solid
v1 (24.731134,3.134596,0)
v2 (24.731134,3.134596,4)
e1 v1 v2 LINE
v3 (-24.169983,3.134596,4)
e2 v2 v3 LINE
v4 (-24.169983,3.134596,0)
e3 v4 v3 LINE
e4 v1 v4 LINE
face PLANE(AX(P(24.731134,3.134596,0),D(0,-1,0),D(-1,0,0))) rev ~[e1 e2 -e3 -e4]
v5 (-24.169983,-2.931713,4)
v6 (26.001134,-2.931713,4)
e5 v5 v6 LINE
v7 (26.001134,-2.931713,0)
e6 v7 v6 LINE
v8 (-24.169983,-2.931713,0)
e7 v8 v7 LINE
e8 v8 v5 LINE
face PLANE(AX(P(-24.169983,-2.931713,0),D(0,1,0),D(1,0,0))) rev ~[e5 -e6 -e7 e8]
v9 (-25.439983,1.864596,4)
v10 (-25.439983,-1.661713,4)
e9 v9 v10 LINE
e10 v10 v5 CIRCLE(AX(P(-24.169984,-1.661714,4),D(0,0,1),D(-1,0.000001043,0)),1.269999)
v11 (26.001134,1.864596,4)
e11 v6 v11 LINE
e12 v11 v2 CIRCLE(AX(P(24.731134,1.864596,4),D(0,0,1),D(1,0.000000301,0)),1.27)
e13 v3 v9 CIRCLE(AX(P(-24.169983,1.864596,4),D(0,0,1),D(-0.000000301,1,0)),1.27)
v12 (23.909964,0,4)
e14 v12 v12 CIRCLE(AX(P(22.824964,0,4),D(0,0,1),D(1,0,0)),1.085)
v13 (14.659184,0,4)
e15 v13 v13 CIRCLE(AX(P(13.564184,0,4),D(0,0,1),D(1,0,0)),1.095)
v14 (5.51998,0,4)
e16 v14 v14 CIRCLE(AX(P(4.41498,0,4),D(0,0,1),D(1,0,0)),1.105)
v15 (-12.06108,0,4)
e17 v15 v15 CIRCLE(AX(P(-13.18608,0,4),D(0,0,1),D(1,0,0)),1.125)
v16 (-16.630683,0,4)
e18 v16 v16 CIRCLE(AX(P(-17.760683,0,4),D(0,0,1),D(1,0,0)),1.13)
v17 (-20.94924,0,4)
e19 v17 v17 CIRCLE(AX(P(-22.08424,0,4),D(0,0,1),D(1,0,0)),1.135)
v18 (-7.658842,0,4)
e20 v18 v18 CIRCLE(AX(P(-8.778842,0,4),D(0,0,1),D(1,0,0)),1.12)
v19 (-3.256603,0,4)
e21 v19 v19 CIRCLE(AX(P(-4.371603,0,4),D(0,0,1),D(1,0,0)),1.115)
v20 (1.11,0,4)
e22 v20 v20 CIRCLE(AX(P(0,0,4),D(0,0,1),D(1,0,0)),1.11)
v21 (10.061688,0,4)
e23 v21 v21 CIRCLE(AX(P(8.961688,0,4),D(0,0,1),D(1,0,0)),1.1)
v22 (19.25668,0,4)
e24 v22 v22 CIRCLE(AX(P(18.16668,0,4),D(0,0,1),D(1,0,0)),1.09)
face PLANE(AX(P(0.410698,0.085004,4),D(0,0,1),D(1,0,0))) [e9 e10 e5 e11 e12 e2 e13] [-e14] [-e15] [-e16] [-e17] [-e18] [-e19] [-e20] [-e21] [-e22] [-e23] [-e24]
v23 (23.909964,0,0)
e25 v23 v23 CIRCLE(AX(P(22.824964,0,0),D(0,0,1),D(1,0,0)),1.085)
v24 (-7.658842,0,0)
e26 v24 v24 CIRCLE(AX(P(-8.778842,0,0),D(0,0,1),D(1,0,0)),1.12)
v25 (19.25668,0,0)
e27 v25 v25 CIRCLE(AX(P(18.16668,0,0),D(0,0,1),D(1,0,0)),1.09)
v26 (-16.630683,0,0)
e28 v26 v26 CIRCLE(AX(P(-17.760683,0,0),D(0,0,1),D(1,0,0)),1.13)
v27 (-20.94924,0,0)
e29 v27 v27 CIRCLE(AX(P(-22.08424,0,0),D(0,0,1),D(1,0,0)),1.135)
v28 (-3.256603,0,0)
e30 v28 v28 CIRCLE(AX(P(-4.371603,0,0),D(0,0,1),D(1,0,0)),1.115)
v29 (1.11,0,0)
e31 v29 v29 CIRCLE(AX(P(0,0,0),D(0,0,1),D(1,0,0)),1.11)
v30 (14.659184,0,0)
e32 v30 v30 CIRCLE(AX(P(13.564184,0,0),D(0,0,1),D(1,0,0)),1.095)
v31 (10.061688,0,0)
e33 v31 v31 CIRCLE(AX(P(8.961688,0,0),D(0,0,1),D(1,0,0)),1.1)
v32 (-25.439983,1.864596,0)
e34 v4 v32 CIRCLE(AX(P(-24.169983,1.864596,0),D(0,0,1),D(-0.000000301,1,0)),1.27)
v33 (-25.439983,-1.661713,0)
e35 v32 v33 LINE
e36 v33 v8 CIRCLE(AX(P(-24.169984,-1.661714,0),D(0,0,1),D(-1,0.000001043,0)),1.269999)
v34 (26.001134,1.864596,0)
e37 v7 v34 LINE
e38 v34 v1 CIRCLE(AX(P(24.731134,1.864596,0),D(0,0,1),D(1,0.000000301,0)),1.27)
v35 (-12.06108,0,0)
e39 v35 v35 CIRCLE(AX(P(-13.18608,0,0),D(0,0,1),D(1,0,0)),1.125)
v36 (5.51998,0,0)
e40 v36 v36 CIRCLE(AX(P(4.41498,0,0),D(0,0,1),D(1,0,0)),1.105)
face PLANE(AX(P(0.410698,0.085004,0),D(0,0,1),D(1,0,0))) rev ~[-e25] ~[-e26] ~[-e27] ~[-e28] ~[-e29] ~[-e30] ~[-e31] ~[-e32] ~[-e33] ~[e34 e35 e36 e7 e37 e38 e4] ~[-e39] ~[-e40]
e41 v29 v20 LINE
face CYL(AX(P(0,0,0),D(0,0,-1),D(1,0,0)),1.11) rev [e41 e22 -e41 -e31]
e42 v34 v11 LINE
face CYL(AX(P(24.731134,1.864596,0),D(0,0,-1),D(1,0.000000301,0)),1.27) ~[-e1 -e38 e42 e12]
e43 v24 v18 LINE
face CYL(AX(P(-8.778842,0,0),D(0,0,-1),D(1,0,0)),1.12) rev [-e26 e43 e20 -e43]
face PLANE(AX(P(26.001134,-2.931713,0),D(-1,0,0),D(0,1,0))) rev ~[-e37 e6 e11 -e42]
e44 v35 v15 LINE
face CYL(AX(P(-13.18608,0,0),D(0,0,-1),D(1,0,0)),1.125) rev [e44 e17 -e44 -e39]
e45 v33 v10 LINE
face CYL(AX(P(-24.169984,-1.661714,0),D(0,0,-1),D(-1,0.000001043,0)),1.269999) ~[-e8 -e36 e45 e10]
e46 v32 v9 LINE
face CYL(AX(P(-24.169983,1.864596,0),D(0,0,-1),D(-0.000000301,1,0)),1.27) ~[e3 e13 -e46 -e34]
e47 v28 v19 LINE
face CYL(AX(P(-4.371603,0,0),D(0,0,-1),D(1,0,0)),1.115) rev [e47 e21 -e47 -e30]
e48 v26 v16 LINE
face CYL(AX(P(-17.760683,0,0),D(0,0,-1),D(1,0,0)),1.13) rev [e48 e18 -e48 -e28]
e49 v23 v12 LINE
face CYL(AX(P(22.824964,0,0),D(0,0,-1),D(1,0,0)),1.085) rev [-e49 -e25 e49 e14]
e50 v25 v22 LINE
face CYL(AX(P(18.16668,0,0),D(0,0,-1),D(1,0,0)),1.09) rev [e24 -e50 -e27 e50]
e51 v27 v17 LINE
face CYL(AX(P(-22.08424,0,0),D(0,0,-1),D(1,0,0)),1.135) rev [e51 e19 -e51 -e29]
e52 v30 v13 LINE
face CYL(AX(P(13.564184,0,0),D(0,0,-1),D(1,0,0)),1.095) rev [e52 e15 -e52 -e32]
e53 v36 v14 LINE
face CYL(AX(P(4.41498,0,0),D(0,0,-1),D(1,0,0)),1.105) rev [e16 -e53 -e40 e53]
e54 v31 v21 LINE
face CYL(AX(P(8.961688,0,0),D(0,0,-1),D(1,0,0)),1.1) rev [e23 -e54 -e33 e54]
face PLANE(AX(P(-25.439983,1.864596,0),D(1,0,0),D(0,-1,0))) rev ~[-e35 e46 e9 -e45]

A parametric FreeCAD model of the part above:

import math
import FreeCAD as App
import Part
import Sketcher
from FreeCAD import Vector
Q = App.Units.Quantity

doc = App.newDocument("Part")
body = doc.addObject("PartDesign::Body", "Body")

# Sketch on XY plane
sketch1 = doc.addObject("Sketcher::SketchObject", "Sketch")
body.addObject(sketch1)
sketch1.AttachmentSupport = (doc.XY_Plane, [""])
sketch1.MapMode = "FlatFace"
sketch1.addGeometry(Part.LineSegment(Vector(24.7, 3.1, 0), Vector(-24.2, 3.1, 0)), False)
sketch1.addGeometry(Part.ArcOfCircle(Part.Circle(Vector(-24.2, 1.9, 0), Vector(0, 0, 1), 1.3), math.radians(90), math.radians(180)), False)
sketch1.addGeometry(Part.LineSegment(Vector(-25.4, 1.9, 0), Vector(-25.4, -1.7, 0)), False)
sketch1.addGeometry(Part.ArcOfCircle(Part.Circle(Vector(-24.2, -1.7, 0), Vector(0, 0, 1), 1.3), math.radians(180), math.radians(270)), False)
sketch1.addGeometry(Part.LineSegment(Vector(-24.2, -2.9, 0), Vector(26, -2.9, 0)), False)
sketch1.addGeometry(Part.LineSegment(Vector(26, -2.9, 0), Vector(26, 1.9, 0)), False)
sketch1.addGeometry(Part.ArcOfCircle(Part.Circle(Vector(24.7, 1.9, 0), Vector(0, 0, 1), 1.3), math.radians(0), math.radians(90)), False)
sketch1.addGeometry(Part.Circle(Vector(-22.1, 0, 0), Vector(0, 0, 1), 1.1), False)
sketch1.addGeometry(Part.Circle(Vector(-17.8, 0, 0), Vector(0, 0, 1), 1.1), False)
sketch1.addGeometry(Part.Circle(Vector(-13.2, 0, 0), Vector(0, 0, 1), 1.1), False)
sketch1.addGeometry(Part.Circle(Vector(-8.8, 0, 0), Vector(0, 0, 1), 1.1), False)
sketch1.addGeometry(Part.Circle(Vector(-4.4, 0, 0), Vector(0, 0, 1), 1.1), False)
sketch1.addGeometry(Part.Circle(Vector(0, 0, 0), Vector(0, 0, 1), 1.1), False)
sketch1.addGeometry(Part.Circle(Vector(4.4, 0, 0), Vector(0, 0, 1), 1.1), False)
sketch1.addGeometry(Part.Circle(Vector(9, 0, 0), Vector(0, 0, 1), 1.1), False)
sketch1.addGeometry(Part.Circle(Vector(13.6, 0, 0), Vector(0, 0, 1), 1.1), False)
sketch1.addGeometry(Part.Circle(Vector(18.2, 0, 0), Vector(0, 0, 1), 1.1), False)
sketch1.addGeometry(Part.Circle(Vector(22.8, 0, 0), Vector(0, 0, 1), 1.1), False)
sketch1.addConstraint(Sketcher.Constraint("Tangent", 0, 2, 1, 1))
sketch1.addConstraint(Sketcher.Constraint("Tangent", 1, 2, 2, 1))
sketch1.addConstraint(Sketcher.Constraint("Tangent", 2, 2, 3, 1))
sketch1.addConstraint(Sketcher.Constraint("Tangent", 3, 2, 4, 1))
sketch1.addConstraint(Sketcher.Constraint("Coincident", 4, 2, 5, 1))
sketch1.addConstraint(Sketcher.Constraint("Tangent", 5, 2, 6, 1))
sketch1.addConstraint(Sketcher.Constraint("Tangent", 6, 2, 0, 1))
sketch1.addConstraint(Sketcher.Constraint("Horizontal", 0))
sketch1.addConstraint(Sketcher.Constraint("Vertical", 2))
sketch1.addConstraint(Sketcher.Constraint("Horizontal", 4))
sketch1.addConstraint(Sketcher.Constraint("Vertical", 5))
sketch1.addConstraint(Sketcher.Constraint("Coincident", 12, 3, -1, 1))
sketch1.addConstraint(Sketcher.Constraint("Equal", 1, 3))
sketch1.addConstraint(Sketcher.Constraint("Equal", 3, 6))
sketch1.addConstraint(Sketcher.Constraint("PointOnObject", 7, 3, -1))
sketch1.addConstraint(Sketcher.Constraint("PointOnObject", 8, 3, -1))
sketch1.addConstraint(Sketcher.Constraint("PointOnObject", 9, 3, -1))
sketch1.addConstraint(Sketcher.Constraint("PointOnObject", 10, 3, -1))
sketch1.addConstraint(Sketcher.Constraint("PointOnObject", 11, 3, -1))
sketch1.addConstraint(Sketcher.Constraint("PointOnObject", 13, 3, -1))
sketch1.addConstraint(Sketcher.Constraint("PointOnObject", 14, 3, -1))
sketch1.addConstraint(Sketcher.Constraint("PointOnObject", 15, 3, -1))
sketch1.addConstraint(Sketcher.Constraint("PointOnObject", 16, 3, -1))
sketch1.addConstraint(Sketcher.Constraint("PointOnObject", 17, 3, -1))
sketch1.addConstraint(Sketcher.Constraint("Diameter", 14, Q("2.2 mm")))
sketch1.addConstraint(Sketcher.Constraint("Diameter", 7, Q("2.27 mm")))
sketch1.addConstraint(Sketcher.Constraint("Diameter", 8, Q("2.26 mm")))
sketch1.addConstraint(Sketcher.Constraint("Diameter", 9, Q("2.25 mm")))
sketch1.addConstraint(Sketcher.Constraint("Diameter", 10, Q("2.24 mm")))
sketch1.addConstraint(Sketcher.Constraint("Diameter", 11, Q("2.23 mm")))
sketch1.addConstraint(Sketcher.Constraint("Diameter", 12, Q("2.22 mm")))
sketch1.addConstraint(Sketcher.Constraint("Diameter", 13, Q("2.21 mm")))
sketch1.addConstraint(Sketcher.Constraint("Diameter", 15, Q("2.19 mm")))
sketch1.addConstraint(Sketcher.Constraint("Diameter", 16, Q("2.18 mm")))
sketch1.addConstraint(Sketcher.Constraint("Diameter", 17, Q("2.17 mm")))
sketch1.addConstraint(Sketcher.Constraint("Radius", 1, Q("1.27 mm")))
sketch1.addConstraint(Sketcher.Constraint("DistanceY", 2, 2, 2, 1, Q("3.526309 mm")))
sketch1.addConstraint(Sketcher.Constraint("DistanceX", 3, 3, 8, 3, Q("6.409301 mm")))
sketch1.addConstraint(Sketcher.Constraint("DistanceX", 7, 3, 10, 3, Q("13.305398 mm")))
sketch1.addConstraint(Sketcher.Constraint("DistanceX", 13, 3, 16, 3, Q("13.7517 mm")))
sketch1.addConstraint(Sketcher.Constraint("DistanceX", 0, 2, 0, 1, Q("48.901117 mm")))
sketch1.addConstraint(Sketcher.Constraint("DistanceX", 7, 3, -1, 1, Q("22.08424 mm")))
sketch1.addConstraint(Sketcher.Constraint("DistanceX", 9, 3, -1, 1, Q("13.18608 mm")))
sketch1.addConstraint(Sketcher.Constraint("DistanceX", -1, 1, 13, 3, Q("4.41498 mm")))
sketch1.addConstraint(Sketcher.Constraint("DistanceX", 8, 3, 10, 3, Q("8.981841 mm")))
sketch1.addConstraint(Sketcher.Constraint("DistanceX", 10, 3, 11, 3, Q("4.407239 mm")))
sketch1.addConstraint(Sketcher.Constraint("DistanceX", 13, 3, 14, 3, Q("4.546708 mm")))
sketch1.addConstraint(Sketcher.Constraint("DistanceX", 15, 3, 6, 3, Q("11.16695 mm")))
sketch1.addConstraint(Sketcher.Constraint("DistanceX", 17, 3, 6, 3, Q("1.90617 mm")))
sketch1.addConstraint(Sketcher.Constraint("DistanceY", -1, 1, 1, 3, Q("1.864596 mm")))
pad1 = doc.addObject("PartDesign::Pad", "Pad")
body.addObject(pad1)
pad1.Profile = sketch1
pad1.Length = 4

doc.recompute()
